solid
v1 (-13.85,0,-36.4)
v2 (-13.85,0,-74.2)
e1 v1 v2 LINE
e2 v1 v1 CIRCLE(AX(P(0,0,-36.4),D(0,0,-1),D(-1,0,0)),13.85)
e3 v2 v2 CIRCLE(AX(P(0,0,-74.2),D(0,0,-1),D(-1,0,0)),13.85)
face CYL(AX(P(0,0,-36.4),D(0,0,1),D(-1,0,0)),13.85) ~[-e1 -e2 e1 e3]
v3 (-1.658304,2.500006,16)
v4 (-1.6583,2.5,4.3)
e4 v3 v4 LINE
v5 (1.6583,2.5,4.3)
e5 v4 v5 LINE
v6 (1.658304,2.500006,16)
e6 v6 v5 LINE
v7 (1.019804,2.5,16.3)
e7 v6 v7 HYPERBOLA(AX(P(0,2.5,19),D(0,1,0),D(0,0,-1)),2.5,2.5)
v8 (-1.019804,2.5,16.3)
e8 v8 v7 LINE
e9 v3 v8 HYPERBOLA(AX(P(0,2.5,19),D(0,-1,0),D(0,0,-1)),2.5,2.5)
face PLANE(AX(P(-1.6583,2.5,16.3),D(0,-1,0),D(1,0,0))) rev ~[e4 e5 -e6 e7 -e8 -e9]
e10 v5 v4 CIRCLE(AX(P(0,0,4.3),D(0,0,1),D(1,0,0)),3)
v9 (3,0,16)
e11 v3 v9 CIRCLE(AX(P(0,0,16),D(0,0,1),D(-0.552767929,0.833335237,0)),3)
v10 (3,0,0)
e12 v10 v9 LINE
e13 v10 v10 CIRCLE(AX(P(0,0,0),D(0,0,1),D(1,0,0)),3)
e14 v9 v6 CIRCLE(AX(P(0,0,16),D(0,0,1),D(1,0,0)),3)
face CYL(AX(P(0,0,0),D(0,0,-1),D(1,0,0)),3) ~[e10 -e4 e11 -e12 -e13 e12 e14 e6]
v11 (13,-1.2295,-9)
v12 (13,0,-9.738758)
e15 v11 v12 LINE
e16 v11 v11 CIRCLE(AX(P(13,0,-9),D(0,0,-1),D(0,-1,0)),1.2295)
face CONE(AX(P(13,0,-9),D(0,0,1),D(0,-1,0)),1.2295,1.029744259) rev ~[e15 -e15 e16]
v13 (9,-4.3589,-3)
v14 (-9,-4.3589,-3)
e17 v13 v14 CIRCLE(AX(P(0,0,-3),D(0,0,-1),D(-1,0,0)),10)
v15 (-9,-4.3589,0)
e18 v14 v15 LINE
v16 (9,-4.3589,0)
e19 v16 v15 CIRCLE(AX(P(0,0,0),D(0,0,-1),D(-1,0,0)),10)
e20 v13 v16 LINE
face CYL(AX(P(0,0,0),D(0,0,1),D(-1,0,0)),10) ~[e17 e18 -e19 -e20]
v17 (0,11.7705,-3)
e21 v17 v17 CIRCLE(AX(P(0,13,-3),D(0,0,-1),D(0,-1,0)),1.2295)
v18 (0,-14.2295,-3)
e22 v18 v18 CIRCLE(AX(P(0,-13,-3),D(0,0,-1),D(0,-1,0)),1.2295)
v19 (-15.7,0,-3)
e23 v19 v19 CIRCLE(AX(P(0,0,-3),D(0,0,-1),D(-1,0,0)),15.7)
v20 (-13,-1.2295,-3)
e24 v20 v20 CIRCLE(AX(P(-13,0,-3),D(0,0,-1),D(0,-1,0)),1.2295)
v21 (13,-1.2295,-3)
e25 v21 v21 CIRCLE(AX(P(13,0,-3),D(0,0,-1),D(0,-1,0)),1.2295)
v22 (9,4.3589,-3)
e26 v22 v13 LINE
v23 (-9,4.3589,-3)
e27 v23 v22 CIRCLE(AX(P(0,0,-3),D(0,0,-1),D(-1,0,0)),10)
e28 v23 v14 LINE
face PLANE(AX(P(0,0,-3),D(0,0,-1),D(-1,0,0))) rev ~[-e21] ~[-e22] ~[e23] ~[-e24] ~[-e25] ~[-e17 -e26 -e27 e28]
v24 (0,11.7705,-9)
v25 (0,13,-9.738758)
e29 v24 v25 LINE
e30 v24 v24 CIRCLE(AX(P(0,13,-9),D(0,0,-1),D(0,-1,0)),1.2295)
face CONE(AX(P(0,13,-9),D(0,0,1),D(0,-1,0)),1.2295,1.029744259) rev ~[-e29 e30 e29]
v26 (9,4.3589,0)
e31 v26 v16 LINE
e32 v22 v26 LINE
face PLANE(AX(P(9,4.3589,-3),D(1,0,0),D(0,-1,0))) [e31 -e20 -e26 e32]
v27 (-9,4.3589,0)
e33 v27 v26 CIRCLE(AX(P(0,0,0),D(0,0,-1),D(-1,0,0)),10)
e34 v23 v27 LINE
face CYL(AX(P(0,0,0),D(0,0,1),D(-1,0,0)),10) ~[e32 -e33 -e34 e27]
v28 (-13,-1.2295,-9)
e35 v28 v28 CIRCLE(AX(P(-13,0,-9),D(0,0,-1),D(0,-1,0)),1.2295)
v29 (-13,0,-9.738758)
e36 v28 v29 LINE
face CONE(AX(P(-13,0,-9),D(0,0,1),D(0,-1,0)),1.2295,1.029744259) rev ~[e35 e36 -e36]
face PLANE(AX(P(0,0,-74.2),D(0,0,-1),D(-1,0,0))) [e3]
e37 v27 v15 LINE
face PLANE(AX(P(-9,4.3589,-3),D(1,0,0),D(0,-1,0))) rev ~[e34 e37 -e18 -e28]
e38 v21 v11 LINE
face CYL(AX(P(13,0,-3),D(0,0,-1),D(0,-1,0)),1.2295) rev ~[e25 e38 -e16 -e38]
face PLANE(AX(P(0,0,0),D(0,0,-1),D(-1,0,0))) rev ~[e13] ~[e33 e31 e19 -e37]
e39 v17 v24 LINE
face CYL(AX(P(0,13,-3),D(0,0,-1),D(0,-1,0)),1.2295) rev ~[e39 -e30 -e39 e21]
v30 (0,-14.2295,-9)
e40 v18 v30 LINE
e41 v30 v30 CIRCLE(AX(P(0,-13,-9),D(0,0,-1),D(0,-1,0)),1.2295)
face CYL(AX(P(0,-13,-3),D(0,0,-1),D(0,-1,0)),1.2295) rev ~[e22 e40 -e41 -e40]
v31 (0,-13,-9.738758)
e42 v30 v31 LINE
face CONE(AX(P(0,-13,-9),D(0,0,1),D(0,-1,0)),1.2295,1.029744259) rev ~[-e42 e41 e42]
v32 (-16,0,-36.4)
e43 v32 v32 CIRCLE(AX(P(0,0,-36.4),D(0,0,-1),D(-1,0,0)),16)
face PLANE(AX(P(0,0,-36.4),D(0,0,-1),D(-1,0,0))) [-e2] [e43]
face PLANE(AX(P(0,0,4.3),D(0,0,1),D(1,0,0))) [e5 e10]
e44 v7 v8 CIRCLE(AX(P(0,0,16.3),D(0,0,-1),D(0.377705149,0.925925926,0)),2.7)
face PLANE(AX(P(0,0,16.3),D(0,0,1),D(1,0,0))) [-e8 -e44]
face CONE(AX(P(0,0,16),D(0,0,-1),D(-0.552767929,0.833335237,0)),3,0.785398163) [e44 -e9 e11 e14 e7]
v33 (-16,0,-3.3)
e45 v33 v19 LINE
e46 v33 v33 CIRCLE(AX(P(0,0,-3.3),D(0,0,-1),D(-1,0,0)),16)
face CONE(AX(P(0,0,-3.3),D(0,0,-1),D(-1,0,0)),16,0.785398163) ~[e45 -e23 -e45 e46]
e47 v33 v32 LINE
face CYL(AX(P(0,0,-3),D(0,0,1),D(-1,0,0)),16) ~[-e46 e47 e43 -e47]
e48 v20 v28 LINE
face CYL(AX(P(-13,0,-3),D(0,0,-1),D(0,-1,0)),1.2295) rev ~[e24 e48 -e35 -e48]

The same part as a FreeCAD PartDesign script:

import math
import FreeCAD as App
import Part
import Sketcher

V = App.Vector
Q = App.Units.Quantity


def edges_at(feature, points):
    """Names of the edges that pass closest to the given points."""
    edges = feature.Shape.Edges
    near = lambda p: min(range(len(edges)), key=lambda i: edges[i].distToShape(Part.Vertex(*p))[0])
    return sorted({f"Edge{near(p) + 1}" for p in points})

doc = App.newDocument("Part")
body = doc.addObject("PartDesign::Body", "Body")

# Sketch on XY plane
sketch1 = body.newObject("Sketcher::SketchObject", "Sketch")
sketch1.AttachmentSupport = (doc.getObject("XY_Plane"), [""])
sketch1.MapMode = "FlatFace"
sketch1.addGeometry(Part.Circle(V(0, 0, 0), V(0, 0, 1), 3), False)
sketch1.addConstraint([
    Sketcher.Constraint("Coincident", 0, 3, -1, 1),
    Sketcher.Constraint("Diameter", 0, Q("6 mm")),
])
pad1 = body.newObject("PartDesign::Pad", "Pad")
pad1.Profile = sketch1
pad1.Length = 16.3

# Sketch on XY plane
sketch2 = body.newObject("Sketcher::SketchObject", "Sketch001")
sketch2.AttachmentSupport = (doc.getObject("XY_Plane"), [""])
sketch2.MapMode = "FlatFace"
sketch2.AttachmentOffset = App.Placement(V(0, 0, 16.3), App.Rotation())
sketch2.addGeometry([
    Part.LineSegment(V(-1.7, 2.5, 0), V(1.7, 2.5, 0)),
    Part.ArcOfCircle(Part.Circle(V(0, 0, 0), V(0, 0, 1), 3), math.radians(56), math.radians(124)),
], False)
sketch2.addConstraint([
    Sketcher.Constraint("Coincident", 0, 1, 1, 2),
    Sketcher.Constraint("Coincident", 1, 1, 0, 2),
    Sketcher.Constraint("Horizontal", 0),
    Sketcher.Constraint("Coincident", 1, 3, -1, 1),
    Sketcher.Constraint("Radius", 1, Q("3 mm")),
    Sketcher.Constraint("DistanceY", -1, 1, 0, 1, Q("2.5 mm")),
])
pocket1 = body.newObject("PartDesign::Pocket", "Pocket")
pocket1.Profile = sketch2
pocket1.Length = 12
doc.recompute()

chamfer = body.newObject("PartDesign::Chamfer", "Chamfer")
chamfer.Base = (pocket1, edges_at(pocket1, [(-1.419, -2.643, 16.3), (2.643, 1.419, 16.3)]))
chamfer.Size = 0.3

# Sketch on XY plane
sketch3 = body.newObject("Sketcher::SketchObject", "Sketch002")
sketch3.AttachmentSupport = (doc.getObject("XY_Plane"), [""])
sketch3.MapMode = "FlatFace"
sketch3.addGeometry(Part.Circle(V(0, 0, 0), V(0, 0, 1), 10), False)
sketch3.addConstraint([
    Sketcher.Constraint("Coincident", 0, 3, -1, 1),
    Sketcher.Constraint("Diameter", 0, Q("20 mm")),
])
pad2 = body.newObject("PartDesign::Pad", "Pad001")
pad2.Profile = sketch3
pad2.Length = 3
pad2.Reversed = True

# Sketch on XY plane
sketch4 = body.newObject("Sketcher::SketchObject", "Sketch003")
sketch4.AttachmentSupport = (doc.getObject("XY_Plane"), [""])
sketch4.MapMode = "FlatFace"
sketch4.AttachmentOffset = App.Placement(V(0, 0, -3), App.Rotation())
sketch4.addGeometry([
    Part.ArcOfCircle(Part.Circle(V(0, 0, 0), V(0, 0, 1), 10), math.radians(154), math.radians(206)),
    Part.LineSegment(V(-9, 4, 0), V(-9, -4, 0)),
    Part.LineSegment(V(9, -4, 0), V(9, 4, 0)),
    Part.ArcOfCircle(Part.Circle(V(0, 0, 0), V(0, 0, 1), 10), math.radians(-26), math.radians(26)),
], False)
sketch4.addConstraint([
    Sketcher.Constraint("Coincident", 0, 1, 1, 1),
    Sketcher.Constraint("Coincident", 1, 2, 0, 2),
    Sketcher.Constraint("Coincident", 2, 1, 3, 1),
    Sketcher.Constraint("Coincident", 3, 2, 2, 2),
    Sketcher.Constraint("Vertical", 1),
    Sketcher.Constraint("Vertical", 2),
    Sketcher.Constraint("Coincident", 0, 3, -1, 1),
    Sketcher.Constraint("Coincident", 3, 3, -1, 1),
    Sketcher.Constraint("Equal", 0, 3),
    Sketcher.Constraint("Horizontal", 1, 2, 2, 1),
    Sketcher.Constraint("Radius", 0, Q("10 mm")),
    Sketcher.Constraint("DistanceX", 1, 2, 2, 1, Q("18 mm")),
])
pocket2 = body.newObject("PartDesign::Pocket", "Pocket001")
pocket2.Profile = sketch4
pocket2.Length = 3
pocket2.Reversed = True

# Sketch on XY plane
sketch5 = body.newObject("Sketcher::SketchObject", "Sketch004")
sketch5.AttachmentSupport = (doc.getObject("XY_Plane"), [""])
sketch5.MapMode = "FlatFace"
sketch5.AttachmentOffset = App.Placement(V(0, 0, -3), App.Rotation())
sketch5.addGeometry(Part.Circle(V(0, 0, 0), V(0, 0, 1), 16), False)
sketch5.addConstraint([
    Sketcher.Constraint("Coincident", 0, 3, -1, 1),
    Sketcher.Constraint("Diameter", 0, Q("32 mm")),
])
pad3 = body.newObject("PartDesign::Pad", "Pad002")
pad3.Profile = sketch5
pad3.Length = 33.4
pad3.Reversed = True
doc.recompute()

chamfer2 = body.newObject("PartDesign::Chamfer", "Chamfer001")
chamfer2.Base = (pad3, edges_at(pad3, [(16, 0, -3)]))
chamfer2.Size = 0.3

# Sketch on XY plane
sketch6 = body.newObject("Sketcher::SketchObject", "Sketch005")
sketch6.AttachmentSupport = (doc.getObject("XY_Plane"), [""])
sketch6.MapMode = "FlatFace"
sketch6.AttachmentOffset = App.Placement(V(0, 0, -3), App.Rotation())
sketch6.addGeometry([
    Part.Circle(V(0, 13, 0), V(0, 0, 1), 1.2),
    Part.Circle(V(-13, 0, 0), V(0, 0, 1), 1.2),
    Part.Circle(V(0, -13, 0), V(0, 0, 1), 1.2),
    Part.Circle(V(13, 0, 0), V(0, 0, 1), 1.2),
], False)
sketch6.addConstraint([
    Sketcher.Constraint("Equal", 0, 1),
    Sketcher.Constraint("Equal", 1, 2),
    Sketcher.Constraint("Equal", 2, 3),
    Sketcher.Constraint("Symmetric", 0, 3, 2, 3, -1, 1),
    Sketcher.Constraint("Symmetric", 1, 3, 3, 3, -1, 1),
    Sketcher.Constraint("PointOnObject", 0, 3, -2),
    Sketcher.Constraint("PointOnObject", 1, 3, -1),
    Sketcher.Constraint("Diameter", 0, Q("2.459 mm")),
    Sketcher.Constraint("DistanceY", -1, 1, 0, 3, Q("13 mm")),
    Sketcher.Constraint("DistanceX", 1, 3, -1, 1, Q("13 mm")),
])
doc.recompute()
hole = body.newObject("PartDesign::Hole", "Hole")
hole.Profile = sketch6
hole.ThreadType = "None"
hole.Diameter = 2.459
hole.DepthType = "Dimension"
hole.Depth = 6
hole.DrillPoint = "Angled"
hole.DrillPointAngle = 118

# Sketch on XY plane
sketch7 = body.newObject("Sketcher::SketchObject", "Sketch006")
sketch7.AttachmentSupport = (doc.getObject("XY_Plane"), [""])
sketch7.MapMode = "FlatFace"
sketch7.AttachmentOffset = App.Placement(V(0, 0, -36.4), App.Rotation())
sketch7.addGeometry(Part.Circle(V(0, 0, 0), V(0, 0, 1), 14), False)
sketch7.addConstraint([
    Sketcher.Constraint("Coincident", 0, 3, -1, 1),
    Sketcher.Constraint("Diameter", 0, Q("27.7 mm")),
])
pad4 = body.newObject("PartDesign::Pad", "Pad003")
pad4.Profile = sketch7
pad4.Length = 37.8
pad4.Reversed = True

doc.recompute()
